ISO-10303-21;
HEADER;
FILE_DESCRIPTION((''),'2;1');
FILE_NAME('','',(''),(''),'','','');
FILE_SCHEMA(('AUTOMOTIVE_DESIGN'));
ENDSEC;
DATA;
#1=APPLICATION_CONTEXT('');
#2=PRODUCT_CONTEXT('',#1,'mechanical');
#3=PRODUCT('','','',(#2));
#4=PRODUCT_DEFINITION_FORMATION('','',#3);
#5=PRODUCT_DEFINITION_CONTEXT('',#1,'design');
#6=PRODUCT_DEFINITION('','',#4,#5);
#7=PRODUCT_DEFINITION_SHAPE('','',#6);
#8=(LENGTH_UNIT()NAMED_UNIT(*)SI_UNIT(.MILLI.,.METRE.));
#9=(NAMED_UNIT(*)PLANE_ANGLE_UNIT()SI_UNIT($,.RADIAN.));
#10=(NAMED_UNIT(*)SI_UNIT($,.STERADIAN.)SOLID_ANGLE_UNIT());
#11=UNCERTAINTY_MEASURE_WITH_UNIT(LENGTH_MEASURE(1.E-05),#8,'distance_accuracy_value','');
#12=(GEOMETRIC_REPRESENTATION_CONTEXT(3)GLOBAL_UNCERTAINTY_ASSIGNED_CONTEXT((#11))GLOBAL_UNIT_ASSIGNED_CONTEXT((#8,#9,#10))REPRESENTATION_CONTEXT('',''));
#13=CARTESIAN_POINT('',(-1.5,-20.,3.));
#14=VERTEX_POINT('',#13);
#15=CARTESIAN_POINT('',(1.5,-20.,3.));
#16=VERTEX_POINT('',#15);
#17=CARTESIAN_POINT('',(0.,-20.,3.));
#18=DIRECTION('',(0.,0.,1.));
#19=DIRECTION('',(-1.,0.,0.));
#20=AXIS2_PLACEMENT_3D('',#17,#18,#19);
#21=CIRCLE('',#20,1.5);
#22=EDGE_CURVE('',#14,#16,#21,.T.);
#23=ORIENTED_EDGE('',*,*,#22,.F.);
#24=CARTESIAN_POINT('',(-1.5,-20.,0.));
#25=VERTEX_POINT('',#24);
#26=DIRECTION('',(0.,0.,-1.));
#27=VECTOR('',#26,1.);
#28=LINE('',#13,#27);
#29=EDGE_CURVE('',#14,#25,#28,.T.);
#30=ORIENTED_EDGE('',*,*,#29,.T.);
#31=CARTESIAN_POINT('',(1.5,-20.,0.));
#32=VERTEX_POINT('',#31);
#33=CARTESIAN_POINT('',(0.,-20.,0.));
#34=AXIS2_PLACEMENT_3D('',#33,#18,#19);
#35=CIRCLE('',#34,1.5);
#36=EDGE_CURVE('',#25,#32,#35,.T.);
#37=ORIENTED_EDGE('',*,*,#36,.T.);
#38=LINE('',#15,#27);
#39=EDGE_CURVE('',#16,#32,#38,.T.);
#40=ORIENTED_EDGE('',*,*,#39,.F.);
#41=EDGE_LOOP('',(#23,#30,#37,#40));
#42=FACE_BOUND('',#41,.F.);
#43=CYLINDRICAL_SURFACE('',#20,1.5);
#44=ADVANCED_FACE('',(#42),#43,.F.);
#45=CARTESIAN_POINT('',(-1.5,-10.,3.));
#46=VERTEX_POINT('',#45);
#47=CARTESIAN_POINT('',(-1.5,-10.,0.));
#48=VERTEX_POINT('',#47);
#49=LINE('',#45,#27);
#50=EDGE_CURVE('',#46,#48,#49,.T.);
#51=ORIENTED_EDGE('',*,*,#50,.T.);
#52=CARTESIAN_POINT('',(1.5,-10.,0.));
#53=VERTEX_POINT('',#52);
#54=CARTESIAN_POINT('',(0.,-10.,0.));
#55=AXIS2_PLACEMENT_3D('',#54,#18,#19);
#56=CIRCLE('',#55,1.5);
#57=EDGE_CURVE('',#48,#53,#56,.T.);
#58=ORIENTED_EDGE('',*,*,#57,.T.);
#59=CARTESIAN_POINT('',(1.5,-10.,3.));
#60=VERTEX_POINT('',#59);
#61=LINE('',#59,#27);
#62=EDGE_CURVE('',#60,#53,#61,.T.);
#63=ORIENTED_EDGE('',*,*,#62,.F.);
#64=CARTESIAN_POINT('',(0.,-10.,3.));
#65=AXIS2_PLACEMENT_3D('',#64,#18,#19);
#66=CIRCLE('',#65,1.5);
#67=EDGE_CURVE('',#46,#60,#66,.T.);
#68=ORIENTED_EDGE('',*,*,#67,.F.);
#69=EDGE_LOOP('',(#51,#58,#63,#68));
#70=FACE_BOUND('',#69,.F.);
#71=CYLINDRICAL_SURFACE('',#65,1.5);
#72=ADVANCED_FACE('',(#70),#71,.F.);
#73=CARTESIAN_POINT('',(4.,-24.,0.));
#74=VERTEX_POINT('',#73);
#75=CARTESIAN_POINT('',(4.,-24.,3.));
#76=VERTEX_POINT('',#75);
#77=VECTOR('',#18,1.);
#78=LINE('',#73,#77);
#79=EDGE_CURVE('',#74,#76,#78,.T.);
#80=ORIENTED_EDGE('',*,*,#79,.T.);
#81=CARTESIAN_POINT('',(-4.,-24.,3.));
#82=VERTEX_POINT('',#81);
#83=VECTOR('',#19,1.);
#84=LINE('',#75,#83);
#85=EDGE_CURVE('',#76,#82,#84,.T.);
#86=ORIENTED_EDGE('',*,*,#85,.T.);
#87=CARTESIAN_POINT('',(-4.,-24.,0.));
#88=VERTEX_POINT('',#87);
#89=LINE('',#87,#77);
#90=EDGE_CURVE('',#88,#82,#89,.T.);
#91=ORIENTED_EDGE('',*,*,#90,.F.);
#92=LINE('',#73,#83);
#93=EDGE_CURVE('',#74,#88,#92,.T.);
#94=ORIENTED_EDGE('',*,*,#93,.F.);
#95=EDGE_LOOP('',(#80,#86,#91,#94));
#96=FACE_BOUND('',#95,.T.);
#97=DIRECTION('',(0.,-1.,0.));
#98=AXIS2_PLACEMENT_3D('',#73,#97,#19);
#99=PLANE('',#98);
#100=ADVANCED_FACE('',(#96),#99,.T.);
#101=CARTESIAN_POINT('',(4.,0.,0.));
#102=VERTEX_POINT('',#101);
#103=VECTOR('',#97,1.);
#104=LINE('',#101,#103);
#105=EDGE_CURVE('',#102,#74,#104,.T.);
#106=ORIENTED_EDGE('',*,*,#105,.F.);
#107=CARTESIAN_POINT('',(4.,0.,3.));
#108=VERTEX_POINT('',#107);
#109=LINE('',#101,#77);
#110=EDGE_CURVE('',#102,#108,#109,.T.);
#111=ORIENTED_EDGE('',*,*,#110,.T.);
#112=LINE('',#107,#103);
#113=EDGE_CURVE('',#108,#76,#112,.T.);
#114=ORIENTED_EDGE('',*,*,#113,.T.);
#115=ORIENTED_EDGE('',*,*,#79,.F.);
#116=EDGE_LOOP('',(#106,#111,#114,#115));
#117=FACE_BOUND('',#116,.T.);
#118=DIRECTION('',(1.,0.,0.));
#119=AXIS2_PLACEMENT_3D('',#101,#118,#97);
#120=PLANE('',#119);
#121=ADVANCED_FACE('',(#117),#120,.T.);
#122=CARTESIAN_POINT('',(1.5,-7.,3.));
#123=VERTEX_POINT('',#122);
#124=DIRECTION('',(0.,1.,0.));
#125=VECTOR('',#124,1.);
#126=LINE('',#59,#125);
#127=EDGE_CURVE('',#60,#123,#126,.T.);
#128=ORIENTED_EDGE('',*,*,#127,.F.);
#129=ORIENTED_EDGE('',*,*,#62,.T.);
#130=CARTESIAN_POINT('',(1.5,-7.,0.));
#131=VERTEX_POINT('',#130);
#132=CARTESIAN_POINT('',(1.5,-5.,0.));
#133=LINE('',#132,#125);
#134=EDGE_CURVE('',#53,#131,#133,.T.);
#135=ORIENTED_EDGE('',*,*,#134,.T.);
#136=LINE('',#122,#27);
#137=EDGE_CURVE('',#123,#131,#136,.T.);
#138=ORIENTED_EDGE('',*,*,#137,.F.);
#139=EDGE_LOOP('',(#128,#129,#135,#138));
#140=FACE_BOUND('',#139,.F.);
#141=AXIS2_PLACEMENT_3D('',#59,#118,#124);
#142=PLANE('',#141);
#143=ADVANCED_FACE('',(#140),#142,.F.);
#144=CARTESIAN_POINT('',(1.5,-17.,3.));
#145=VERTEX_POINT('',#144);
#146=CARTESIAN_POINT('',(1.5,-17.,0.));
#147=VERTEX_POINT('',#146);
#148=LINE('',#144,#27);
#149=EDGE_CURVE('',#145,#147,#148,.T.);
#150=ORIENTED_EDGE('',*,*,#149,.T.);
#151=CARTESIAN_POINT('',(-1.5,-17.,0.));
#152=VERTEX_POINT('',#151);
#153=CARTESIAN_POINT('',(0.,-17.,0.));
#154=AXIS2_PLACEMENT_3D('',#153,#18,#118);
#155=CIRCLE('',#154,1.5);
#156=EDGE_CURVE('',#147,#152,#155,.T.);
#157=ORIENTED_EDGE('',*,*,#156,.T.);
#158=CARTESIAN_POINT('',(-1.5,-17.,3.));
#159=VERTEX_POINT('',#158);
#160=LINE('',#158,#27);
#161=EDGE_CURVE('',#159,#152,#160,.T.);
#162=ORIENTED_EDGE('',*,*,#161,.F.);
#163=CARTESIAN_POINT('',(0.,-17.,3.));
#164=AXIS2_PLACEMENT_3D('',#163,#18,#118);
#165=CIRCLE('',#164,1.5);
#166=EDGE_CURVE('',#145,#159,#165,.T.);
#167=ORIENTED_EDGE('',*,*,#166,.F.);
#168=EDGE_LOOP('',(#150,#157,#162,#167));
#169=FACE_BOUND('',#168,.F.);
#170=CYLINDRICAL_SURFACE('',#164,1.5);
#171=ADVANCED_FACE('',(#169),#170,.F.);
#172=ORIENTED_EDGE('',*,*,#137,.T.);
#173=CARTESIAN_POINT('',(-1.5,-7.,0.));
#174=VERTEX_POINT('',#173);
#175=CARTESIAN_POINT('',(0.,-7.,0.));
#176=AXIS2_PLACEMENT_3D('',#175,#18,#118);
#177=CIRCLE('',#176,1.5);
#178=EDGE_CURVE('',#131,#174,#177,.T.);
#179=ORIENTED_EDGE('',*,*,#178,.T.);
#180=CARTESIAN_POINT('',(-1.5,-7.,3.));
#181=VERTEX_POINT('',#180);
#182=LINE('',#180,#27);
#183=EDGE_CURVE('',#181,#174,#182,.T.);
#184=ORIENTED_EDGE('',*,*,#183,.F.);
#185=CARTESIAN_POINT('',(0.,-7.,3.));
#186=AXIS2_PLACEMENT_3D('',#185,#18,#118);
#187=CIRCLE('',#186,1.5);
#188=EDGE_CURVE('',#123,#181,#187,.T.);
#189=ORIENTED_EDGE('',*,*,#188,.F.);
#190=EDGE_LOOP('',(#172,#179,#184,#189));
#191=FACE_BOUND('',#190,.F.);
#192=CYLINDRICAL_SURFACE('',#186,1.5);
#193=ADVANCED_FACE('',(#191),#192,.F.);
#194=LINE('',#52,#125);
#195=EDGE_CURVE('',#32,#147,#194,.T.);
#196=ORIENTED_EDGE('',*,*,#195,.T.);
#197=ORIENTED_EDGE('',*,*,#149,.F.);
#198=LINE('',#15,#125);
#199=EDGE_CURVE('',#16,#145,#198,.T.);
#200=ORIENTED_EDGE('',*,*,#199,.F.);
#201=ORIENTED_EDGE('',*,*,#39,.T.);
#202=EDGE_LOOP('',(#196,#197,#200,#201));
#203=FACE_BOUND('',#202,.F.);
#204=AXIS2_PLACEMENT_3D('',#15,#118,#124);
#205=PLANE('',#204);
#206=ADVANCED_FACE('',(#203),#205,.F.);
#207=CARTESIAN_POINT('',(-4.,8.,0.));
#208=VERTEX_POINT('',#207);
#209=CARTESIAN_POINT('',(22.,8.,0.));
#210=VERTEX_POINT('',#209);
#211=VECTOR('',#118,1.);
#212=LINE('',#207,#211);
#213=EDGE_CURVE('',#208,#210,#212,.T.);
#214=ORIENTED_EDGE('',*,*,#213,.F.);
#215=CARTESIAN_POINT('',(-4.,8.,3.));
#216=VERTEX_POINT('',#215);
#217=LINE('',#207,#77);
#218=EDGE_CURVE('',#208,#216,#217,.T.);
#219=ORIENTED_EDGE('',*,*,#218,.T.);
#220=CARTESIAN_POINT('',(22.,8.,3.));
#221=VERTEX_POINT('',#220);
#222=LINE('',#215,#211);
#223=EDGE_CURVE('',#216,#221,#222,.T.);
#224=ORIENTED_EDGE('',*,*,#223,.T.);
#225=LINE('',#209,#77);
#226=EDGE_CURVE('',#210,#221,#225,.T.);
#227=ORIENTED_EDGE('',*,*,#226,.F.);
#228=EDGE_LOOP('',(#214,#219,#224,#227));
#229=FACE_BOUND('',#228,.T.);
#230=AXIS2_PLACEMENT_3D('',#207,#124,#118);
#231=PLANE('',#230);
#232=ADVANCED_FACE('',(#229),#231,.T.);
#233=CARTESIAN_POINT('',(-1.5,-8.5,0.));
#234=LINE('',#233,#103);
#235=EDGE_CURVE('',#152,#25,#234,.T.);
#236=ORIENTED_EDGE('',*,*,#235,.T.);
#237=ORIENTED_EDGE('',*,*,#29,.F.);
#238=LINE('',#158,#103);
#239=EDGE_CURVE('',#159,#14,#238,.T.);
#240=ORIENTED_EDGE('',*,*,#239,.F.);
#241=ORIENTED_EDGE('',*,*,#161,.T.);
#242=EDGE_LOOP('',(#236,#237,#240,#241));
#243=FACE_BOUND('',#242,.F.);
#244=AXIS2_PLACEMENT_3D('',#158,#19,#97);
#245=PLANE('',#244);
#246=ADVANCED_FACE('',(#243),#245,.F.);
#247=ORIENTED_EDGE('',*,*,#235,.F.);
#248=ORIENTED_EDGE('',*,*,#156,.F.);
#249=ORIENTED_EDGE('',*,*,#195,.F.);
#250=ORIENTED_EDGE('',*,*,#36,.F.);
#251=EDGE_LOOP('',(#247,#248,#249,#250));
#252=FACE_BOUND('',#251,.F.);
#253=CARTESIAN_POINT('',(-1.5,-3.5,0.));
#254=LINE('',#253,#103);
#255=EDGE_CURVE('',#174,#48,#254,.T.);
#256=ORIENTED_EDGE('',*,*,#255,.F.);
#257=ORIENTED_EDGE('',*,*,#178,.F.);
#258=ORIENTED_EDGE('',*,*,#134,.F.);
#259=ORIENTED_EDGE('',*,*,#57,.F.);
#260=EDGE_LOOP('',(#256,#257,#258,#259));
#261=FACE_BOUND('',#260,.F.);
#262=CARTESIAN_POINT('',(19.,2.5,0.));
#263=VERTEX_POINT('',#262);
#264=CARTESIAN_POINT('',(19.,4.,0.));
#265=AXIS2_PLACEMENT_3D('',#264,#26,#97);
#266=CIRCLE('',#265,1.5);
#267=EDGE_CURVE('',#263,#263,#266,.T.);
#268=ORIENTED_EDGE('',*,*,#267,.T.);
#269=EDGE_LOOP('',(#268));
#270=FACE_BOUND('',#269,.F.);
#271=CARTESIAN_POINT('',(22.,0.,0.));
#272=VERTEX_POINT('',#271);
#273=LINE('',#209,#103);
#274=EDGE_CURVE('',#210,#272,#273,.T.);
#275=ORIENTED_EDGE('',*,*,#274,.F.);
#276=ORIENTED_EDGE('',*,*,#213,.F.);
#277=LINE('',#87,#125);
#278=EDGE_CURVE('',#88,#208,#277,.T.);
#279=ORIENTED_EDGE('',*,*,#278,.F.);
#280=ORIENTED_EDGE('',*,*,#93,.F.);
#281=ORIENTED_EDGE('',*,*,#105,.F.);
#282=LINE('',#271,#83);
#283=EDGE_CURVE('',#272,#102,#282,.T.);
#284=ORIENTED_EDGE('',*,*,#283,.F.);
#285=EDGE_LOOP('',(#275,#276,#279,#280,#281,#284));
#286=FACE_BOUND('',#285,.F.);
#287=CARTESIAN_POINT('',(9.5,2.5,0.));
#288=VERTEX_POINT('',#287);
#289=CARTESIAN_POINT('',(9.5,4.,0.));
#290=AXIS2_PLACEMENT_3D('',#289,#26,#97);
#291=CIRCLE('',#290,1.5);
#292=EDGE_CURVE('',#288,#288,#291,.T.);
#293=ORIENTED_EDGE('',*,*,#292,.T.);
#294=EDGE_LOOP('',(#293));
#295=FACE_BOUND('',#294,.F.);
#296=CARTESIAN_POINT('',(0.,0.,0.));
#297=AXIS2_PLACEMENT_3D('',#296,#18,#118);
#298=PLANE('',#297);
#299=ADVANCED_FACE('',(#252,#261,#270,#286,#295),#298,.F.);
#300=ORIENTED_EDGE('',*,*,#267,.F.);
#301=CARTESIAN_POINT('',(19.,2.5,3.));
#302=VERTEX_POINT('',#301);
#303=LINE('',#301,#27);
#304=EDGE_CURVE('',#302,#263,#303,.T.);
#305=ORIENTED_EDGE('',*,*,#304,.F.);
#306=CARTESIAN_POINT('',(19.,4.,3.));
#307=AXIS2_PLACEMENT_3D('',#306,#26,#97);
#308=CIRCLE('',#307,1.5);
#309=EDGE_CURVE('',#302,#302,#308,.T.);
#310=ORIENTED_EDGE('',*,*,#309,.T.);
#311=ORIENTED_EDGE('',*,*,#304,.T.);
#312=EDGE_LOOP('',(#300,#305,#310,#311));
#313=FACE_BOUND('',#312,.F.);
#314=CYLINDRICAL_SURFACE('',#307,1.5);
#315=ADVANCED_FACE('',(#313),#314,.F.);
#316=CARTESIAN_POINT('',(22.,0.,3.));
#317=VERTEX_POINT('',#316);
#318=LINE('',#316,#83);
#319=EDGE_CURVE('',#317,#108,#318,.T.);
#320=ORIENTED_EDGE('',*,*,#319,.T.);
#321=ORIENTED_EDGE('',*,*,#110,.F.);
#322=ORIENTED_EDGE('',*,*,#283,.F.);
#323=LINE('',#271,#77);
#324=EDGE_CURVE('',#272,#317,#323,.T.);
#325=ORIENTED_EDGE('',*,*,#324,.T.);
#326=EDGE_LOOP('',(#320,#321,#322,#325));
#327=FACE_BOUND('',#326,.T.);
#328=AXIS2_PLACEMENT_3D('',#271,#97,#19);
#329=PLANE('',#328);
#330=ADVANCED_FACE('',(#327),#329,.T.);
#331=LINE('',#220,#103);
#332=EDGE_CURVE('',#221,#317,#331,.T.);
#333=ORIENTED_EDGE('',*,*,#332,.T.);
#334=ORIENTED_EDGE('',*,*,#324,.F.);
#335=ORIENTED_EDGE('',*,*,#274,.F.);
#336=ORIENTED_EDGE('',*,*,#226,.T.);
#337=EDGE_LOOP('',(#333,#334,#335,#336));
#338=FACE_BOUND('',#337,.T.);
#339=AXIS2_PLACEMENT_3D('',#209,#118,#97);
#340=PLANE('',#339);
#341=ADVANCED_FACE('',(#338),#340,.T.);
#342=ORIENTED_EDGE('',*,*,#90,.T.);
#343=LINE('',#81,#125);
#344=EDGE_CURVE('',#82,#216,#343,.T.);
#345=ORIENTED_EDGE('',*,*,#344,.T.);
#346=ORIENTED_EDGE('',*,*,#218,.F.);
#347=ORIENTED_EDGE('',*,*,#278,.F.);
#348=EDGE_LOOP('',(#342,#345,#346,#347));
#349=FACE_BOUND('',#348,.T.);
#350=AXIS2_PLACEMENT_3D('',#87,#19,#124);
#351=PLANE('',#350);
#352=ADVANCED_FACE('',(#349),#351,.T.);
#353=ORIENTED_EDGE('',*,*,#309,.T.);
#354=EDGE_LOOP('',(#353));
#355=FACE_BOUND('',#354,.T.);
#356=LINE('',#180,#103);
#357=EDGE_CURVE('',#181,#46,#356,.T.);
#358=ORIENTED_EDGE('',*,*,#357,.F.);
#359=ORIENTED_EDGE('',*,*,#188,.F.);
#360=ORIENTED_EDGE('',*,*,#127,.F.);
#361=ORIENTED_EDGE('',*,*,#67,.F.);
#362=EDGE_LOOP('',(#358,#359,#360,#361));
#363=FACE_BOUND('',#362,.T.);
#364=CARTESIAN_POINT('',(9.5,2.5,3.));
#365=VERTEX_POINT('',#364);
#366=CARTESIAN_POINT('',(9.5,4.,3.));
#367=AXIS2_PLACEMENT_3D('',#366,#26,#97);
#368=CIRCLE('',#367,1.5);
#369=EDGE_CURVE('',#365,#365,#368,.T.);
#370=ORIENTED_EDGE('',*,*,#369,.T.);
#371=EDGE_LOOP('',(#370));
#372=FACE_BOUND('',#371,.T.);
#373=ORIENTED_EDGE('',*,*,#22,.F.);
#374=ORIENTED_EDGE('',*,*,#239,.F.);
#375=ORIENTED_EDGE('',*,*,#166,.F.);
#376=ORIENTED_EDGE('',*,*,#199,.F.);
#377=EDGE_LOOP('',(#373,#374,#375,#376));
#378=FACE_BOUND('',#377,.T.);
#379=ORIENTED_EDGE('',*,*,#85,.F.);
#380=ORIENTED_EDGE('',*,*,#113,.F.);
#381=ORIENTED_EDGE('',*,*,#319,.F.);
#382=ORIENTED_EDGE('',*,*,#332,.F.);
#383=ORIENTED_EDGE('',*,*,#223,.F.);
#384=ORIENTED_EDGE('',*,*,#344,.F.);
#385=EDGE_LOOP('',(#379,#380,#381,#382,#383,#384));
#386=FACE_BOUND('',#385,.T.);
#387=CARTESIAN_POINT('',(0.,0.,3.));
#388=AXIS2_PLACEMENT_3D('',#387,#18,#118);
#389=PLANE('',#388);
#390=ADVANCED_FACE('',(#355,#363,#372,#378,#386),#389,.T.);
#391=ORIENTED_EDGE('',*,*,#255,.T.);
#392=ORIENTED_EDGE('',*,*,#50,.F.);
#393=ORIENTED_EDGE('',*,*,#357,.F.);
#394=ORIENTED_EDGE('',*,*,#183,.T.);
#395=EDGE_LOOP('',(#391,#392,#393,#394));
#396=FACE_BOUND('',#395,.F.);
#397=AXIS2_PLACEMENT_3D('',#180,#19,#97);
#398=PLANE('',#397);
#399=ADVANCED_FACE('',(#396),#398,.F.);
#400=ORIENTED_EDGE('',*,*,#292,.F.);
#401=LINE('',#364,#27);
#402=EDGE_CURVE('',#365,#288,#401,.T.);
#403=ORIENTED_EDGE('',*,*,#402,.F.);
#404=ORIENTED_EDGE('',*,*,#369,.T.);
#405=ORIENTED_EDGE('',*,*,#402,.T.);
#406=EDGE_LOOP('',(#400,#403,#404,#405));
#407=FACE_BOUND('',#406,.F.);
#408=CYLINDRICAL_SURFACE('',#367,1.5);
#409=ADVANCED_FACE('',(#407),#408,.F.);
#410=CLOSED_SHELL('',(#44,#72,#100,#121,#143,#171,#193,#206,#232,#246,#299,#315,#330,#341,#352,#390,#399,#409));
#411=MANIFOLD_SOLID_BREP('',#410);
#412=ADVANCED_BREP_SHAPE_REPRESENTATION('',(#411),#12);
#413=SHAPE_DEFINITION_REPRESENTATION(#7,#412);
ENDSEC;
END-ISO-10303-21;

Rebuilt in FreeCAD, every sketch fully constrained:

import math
import FreeCAD as App
import Part
import Sketcher
from FreeCAD import Vector

doc = App.newDocument("Part")
params = doc.addObject("Spreadsheet::Sheet", "Params")
for row, (alias, value) in enumerate([
    ("sketch1_width", "8 mm"),
    ("sketch1_width2", "26 mm"),
    ("sketch1_height", "32 mm"),
    ("pad1_length", "3 mm"),
    ("sketch2_diameter", "3 mm"),
    ("hole_diameter", "3 mm"),
    ("sketch3_radius", "1.5 mm"),
    ("sketch3_height", "3 mm"),
], start=1):
    params.set(f"A{row}", alias)
    params.set(f"B{row}", "=" + value)
    params.setAlias(f"B{row}", alias)

body = doc.addObject("PartDesign::Body", "Body")

# Sketch on XY plane
sketch1 = body.newObject("Sketcher::SketchObject", "Sketch")
sketch1.AttachmentSupport = (doc.getObject("XY_Plane"), [""])
sketch1.MapMode = "FlatFace"
sketch1.addGeometry(Part.LineSegment(Vector(-4, 8, 0), Vector(-4, -24, 0)), False)
sketch1.addGeometry(Part.LineSegment(Vector(-4, -24, 0), Vector(4, -24, 0)), False)
sketch1.addGeometry(Part.LineSegment(Vector(4, -24, 0), Vector(4, 0, 0)), False)
sketch1.addGeometry(Part.LineSegment(Vector(4, 0, 0), Vector(22, 0, 0)), False)
sketch1.addGeometry(Part.LineSegment(Vector(22, 0, 0), Vector(22, 8, 0)), False)
sketch1.addGeometry(Part.LineSegment(Vector(22, 8, 0), Vector(-4, 8, 0)), False)
sketch1.addConstraint(Sketcher.Constraint("Coincident", 0, 2, 1, 1))
sketch1.addConstraint(Sketcher.Constraint("Coincident", 1, 2, 2, 1))
sketch1.addConstraint(Sketcher.Constraint("Coincident", 2, 2, 3, 1))
sketch1.addConstraint(Sketcher.Constraint("Coincident", 3, 2, 4, 1))
sketch1.addConstraint(Sketcher.Constraint("Coincident", 4, 2, 5, 1))
sketch1.addConstraint(Sketcher.Constraint("Coincident", 5, 2, 0, 1))
sketch1.addConstraint(Sketcher.Constraint("Vertical", 0))
sketch1.addConstraint(Sketcher.Constraint("Horizontal", 1))
sketch1.addConstraint(Sketcher.Constraint("Vertical", 2))
sketch1.addConstraint(Sketcher.Constraint("Horizontal", 3))
sketch1.addConstraint(Sketcher.Constraint("Vertical", 4))
sketch1.addConstraint(Sketcher.Constraint("Horizontal", 5))
sketch1.addConstraint(Sketcher.Constraint("PointOnObject", 2, 2, -1))
sketch1.addConstraint(Sketcher.Constraint("Equal", 1, 4))
sketch1.addConstraint(Sketcher.Constraint("DistanceX", 1, 1, 1, 2, 8.0))
sketch1.addConstraint(Sketcher.Constraint("DistanceX", 5, 2, 5, 1, 26.0))
sketch1.addConstraint(Sketcher.Constraint("DistanceY", 0, 2, 0, 1, 32.0))
sketch1.addConstraint(Sketcher.Constraint("DistanceX", 0, 2, -1, 1, 4.0))
sketch1.setExpression("Constraints[14]", "Params.sketch1_width")
sketch1.setExpression("Constraints[15]", "Params.sketch1_width2")
sketch1.setExpression("Constraints[16]", "Params.sketch1_height")
pad1 = body.newObject("PartDesign::Pad", "Pad")
pad1.Profile = sketch1
pad1.setExpression("Length", "Params.pad1_length")

# Sketch on XY plane
sketch2 = body.newObject("Sketcher::SketchObject", "Sketch001")
sketch2.AttachmentSupport = (doc.getObject("XY_Plane"), [""])
sketch2.MapMode = "FlatFace"
sketch2.AttachmentOffset = App.Placement(Vector(0, 0, 3), App.Rotation())
sketch2.addGeometry(Part.Circle(Vector(9.5, 4, 0), Vector(0, 0, 1), 1.5), False)
sketch2.addGeometry(Part.Circle(Vector(19, 4, 0), Vector(0, 0, 1), 1.5), False)
sketch2.addConstraint(Sketcher.Constraint("Equal", 0, 1))
sketch2.addConstraint(Sketcher.Constraint("Horizontal", 0, 3, 1, 3))
sketch2.addConstraint(Sketcher.Constraint("Diameter", 0, 3.0))
sketch2.addConstraint(Sketcher.Constraint("DistanceY", -1, 1, 0, 3, 4.0))
sketch2.addConstraint(Sketcher.Constraint("DistanceX", -1, 1, 1, 3, 19.0))
sketch2.addConstraint(Sketcher.Constraint("DistanceX", -1, 1, 0, 3, 9.5))
sketch2.setExpression("Constraints[2]", "Params.sketch2_diameter")
doc.recompute()
hole = body.newObject("PartDesign::Hole", "Hole")
hole.Profile = sketch2
hole.ThreadType = "None"
hole.setExpression("Diameter", "Params.hole_diameter")
hole.DepthType = "ThroughAll"

# Sketch on XY plane
sketch3 = body.newObject("Sketcher::SketchObject", "Sketch002")
sketch3.AttachmentSupport = (doc.getObject("XY_Plane"), [""])
sketch3.MapMode = "FlatFace"
sketch3.AttachmentOffset = App.Placement(Vector(0, 0, 3), App.Rotation())
sketch3.addGeometry(Part.ArcOfCircle(Part.Circle(Vector(0, -7, 0), Vector(0, 0, 1), 1.5), math.radians(0), math.radians(180)), False)
sketch3.addGeometry(Part.LineSegment(Vector(-1.5, -7, 0), Vector(-1.5, -10, 0)), False)
sketch3.addGeometry(Part.ArcOfCircle(Part.Circle(Vector(0, -10, 0), Vector(0, 0, 1), 1.5), math.radians(180), math.radians(360)), False)
sketch3.addGeometry(Part.LineSegment(Vector(1.5, -10, 0), Vector(1.5, -7, 0)), False)
sketch3.addGeometry(Part.ArcOfCircle(Part.Circle(Vector(0, -17, 0), Vector(0, 0, 1), 1.5), math.radians(0), math.radians(180)), False)
sketch3.addGeometry(Part.LineSegment(Vector(-1.5, -17, 0), Vector(-1.5, -20, 0)), False)
sketch3.addGeometry(Part.ArcOfCircle(Part.Circle(Vector(0, -20, 0), Vector(0, 0, 1), 1.5), math.radians(180), math.radians(360)), False)
sketch3.addGeometry(Part.LineSegment(Vector(1.5, -20, 0), Vector(1.5, -17, 0)), False)
sketch3.addConstraint(Sketcher.Constraint("Tangent", 0, 2, 1, 1))
sketch3.addConstraint(Sketcher.Constraint("Tangent", 1, 2, 2, 1))
sketch3.addConstraint(Sketcher.Constraint("Tangent", 2, 2, 3, 1))
sketch3.addConstraint(Sketcher.Constraint("Tangent", 3, 2, 0, 1))
sketch3.addConstraint(Sketcher.Constraint("Tangent", 4, 2, 5, 1))
sketch3.addConstraint(Sketcher.Constraint("Tangent", 5, 2, 6, 1))
sketch3.addConstraint(Sketcher.Constraint("Tangent", 6, 2, 7, 1))
sketch3.addConstraint(Sketcher.Constraint("Tangent", 7, 2, 4, 1))
sketch3.addConstraint(Sketcher.Constraint("Vertical", 1))
sketch3.addConstraint(Sketcher.Constraint("Vertical", 3))
sketch3.addConstraint(Sketcher.Constraint("Vertical", 5))
sketch3.addConstraint(Sketcher.Constraint("Vertical", 7))
sketch3.addConstraint(Sketcher.Constraint("Equal", 2, 4))
sketch3.addConstraint(Sketcher.Constraint("PointOnObject", 0, 3, -2))
sketch3.addConstraint(Sketcher.Constraint("PointOnObject", 4, 3, -2))
sketch3.addConstraint(Sketcher.Constraint("Equal", 3, 5))
sketch3.addConstraint(Sketcher.Constraint("Radius", 0, 1.5))
sketch3.addConstraint(Sketcher.Constraint("DistanceY", 1, 2, 1, 1, 3.0))
sketch3.addConstraint(Sketcher.Constraint("DistanceY", 0, 3, -1, 1, 7.0))
sketch3.addConstraint(Sketcher.Constraint("DistanceY", 4, 3, 2, 3, 7.0))
sketch3.setExpression("Constraints[16]", "Params.sketch3_radius")
sketch3.setExpression("Constraints[17]", "Params.sketch3_height")
pocket1 = body.newObject("PartDesign::Pocket", "Pocket")
pocket1.Profile = sketch3
pocket1.Type = "ThroughAll"

doc.recompute()
